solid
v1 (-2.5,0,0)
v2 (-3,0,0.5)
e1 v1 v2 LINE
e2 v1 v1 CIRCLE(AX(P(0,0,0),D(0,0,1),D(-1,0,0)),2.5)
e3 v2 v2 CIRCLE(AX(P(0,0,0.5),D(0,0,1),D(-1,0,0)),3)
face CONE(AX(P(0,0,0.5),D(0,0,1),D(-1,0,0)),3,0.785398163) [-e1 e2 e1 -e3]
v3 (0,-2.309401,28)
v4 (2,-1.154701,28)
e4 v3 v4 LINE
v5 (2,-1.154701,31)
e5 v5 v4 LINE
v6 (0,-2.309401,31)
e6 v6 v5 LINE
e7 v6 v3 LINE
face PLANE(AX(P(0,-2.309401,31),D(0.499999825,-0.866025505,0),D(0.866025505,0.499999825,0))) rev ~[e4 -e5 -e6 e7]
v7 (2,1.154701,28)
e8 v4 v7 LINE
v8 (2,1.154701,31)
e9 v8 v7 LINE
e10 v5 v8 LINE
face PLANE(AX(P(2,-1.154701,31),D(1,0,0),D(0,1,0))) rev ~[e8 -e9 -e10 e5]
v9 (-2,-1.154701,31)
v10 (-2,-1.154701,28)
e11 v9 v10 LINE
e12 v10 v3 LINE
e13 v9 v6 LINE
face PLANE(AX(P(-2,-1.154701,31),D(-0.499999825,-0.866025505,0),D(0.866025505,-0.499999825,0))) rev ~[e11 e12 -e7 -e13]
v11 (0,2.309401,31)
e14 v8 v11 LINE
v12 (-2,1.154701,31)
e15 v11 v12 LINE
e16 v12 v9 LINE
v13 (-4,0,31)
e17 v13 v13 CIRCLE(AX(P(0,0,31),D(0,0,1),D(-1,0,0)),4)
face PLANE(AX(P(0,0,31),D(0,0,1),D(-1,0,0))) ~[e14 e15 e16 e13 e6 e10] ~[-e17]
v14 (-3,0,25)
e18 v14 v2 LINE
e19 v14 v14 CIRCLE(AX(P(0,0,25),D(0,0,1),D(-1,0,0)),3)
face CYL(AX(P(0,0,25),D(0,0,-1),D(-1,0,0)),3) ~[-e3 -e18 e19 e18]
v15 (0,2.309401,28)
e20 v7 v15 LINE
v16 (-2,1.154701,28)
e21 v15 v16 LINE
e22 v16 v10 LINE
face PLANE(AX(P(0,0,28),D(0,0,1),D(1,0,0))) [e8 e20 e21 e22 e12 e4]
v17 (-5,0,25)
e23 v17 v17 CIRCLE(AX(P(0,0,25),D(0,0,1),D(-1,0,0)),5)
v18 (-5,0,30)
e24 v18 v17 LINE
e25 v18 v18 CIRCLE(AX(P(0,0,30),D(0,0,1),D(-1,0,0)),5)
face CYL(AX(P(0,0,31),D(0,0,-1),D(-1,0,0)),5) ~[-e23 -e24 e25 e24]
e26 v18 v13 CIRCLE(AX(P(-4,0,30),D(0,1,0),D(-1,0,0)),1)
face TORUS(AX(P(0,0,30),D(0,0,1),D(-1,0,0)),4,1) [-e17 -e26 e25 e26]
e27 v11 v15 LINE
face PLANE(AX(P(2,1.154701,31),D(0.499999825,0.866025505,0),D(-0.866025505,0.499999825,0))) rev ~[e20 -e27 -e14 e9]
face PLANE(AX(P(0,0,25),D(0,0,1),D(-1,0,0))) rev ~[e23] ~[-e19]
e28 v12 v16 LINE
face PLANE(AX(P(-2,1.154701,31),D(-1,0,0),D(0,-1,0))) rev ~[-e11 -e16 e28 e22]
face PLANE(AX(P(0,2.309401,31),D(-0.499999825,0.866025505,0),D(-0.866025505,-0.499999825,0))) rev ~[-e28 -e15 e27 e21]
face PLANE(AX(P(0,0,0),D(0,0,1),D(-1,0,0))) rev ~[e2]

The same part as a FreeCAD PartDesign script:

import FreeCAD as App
import Part
import Sketcher

V = App.Vector
Q = App.Units.Quantity


def edges_at(feature, points):
    """Names of the edges that pass closest to the given points."""
    edges = feature.Shape.Edges
    near = lambda p: min(range(len(edges)), key=lambda i: edges[i].distToShape(Part.Vertex(*p))[0])
    return sorted({f"Edge{near(p) + 1}" for p in points})


def add_polygon(sketch, points):
    """Adds a closed chain of lines whose ends are joined by coincident constraints."""
    first, n = sketch.GeometryCount, len(points)
    for a, b in zip(points, points[1:] + points[:1]):
        sketch.addGeometry(Part.LineSegment(App.Vector(*a, 0), App.Vector(*b, 0)), False)
    for i in range(n):
        sketch.addConstraint(Sketcher.Constraint("Coincident", first + i, 2, first + (i + 1) % n, 1))

doc = App.newDocument("Part")
body = doc.addObject("PartDesign::Body", "Body")

# Sketch on XZ plane
sketch1 = body.newObject("Sketcher::SketchObject", "Sketch")
sketch1.AttachmentSupport = (doc.getObject("XZ_Plane"), [""])
sketch1.MapMode = "FlatFace"
add_polygon(sketch1, [(-3, 0), (0, 0), (0, 31), (-5, 31), (-5, 25), (-3, 25)])  # lines 0-5
sketch1.addConstraint(Sketcher.Constraint("Horizontal", 0))
sketch1.addConstraint(Sketcher.Constraint("Vertical", 1))
sketch1.addConstraint(Sketcher.Constraint("Horizontal", 2))
sketch1.addConstraint(Sketcher.Constraint("Vertical", 3))
sketch1.addConstraint(Sketcher.Constraint("Horizontal", 4))
sketch1.addConstraint(Sketcher.Constraint("Vertical", 5))
sketch1.addConstraint(Sketcher.Constraint("Coincident", 0, 2, -1, 1))
sketch1.addConstraint(Sketcher.Constraint("DistanceX", 0, 1, 0, 2, Q("3 mm")))
sketch1.addConstraint(Sketcher.Constraint("DistanceX", 2, 2, 2, 1, Q("5 mm")))
sketch1.addConstraint(Sketcher.Constraint("DistanceY", 1, 1, 1, 2, Q("31 mm")))
sketch1.addConstraint(Sketcher.Constraint("DistanceY", 3, 2, 3, 1, Q("6 mm")))
revolution = body.newObject("PartDesign::Revolution", "Revolution")
revolution.Profile = sketch1
revolution.ReferenceAxis = (sketch1, ["V_Axis"])
revolution.Angle = 360
doc.recompute()

chamfer = body.newObject("PartDesign::Chamfer", "Chamfer")
chamfer.Base = (revolution, edges_at(revolution, [(3, 0, 0)]))
chamfer.Size = 0.5
doc.recompute()

fillet = body.newObject("PartDesign::Fillet", "Fillet")
fillet.Base = (chamfer, edges_at(chamfer, [(5, 0, 31)]))
fillet.Radius = 1

# Sketch on XY plane
sketch2 = body.newObject("Sketcher::SketchObject", "Sketch001")
sketch2.AttachmentSupport = (doc.getObject("XY_Plane"), [""])
sketch2.MapMode = "FlatFace"
sketch2.AttachmentOffset = App.Placement(V(0, 0, 31), App.Rotation())
add_polygon(sketch2, [(-2, 1.2), (-2, -1.2), (0, -2.3), (2, -1.2), (2, 1.2), (0, 2.3)])  # lines 0-5
sketch2.addConstraint(Sketcher.Constraint("Vertical", 0))
sketch2.addConstraint(Sketcher.Constraint("Vertical", 3))
sketch2.addConstraint(Sketcher.Constraint("Symmetric", 0, 2, 3, 2, -1, 1))
sketch2.addConstraint(Sketcher.Constraint("Symmetric", 1, 2, 4, 2, -1, 1))
sketch2.addConstraint(Sketcher.Constraint("PointOnObject", 1, 2, -2))
sketch2.addConstraint(Sketcher.Constraint("Parallel", 2, 5))
sketch2.addConstraint(Sketcher.Constraint("Horizontal", 0, 2, 2, 2))
sketch2.addConstraint(Sketcher.Constraint("Angle", 1, Q("-29.999988 deg")))
sketch2.addConstraint(Sketcher.Constraint("DistanceX", 0, 2, -1, 1, Q("2 mm")))
sketch2.addConstraint(Sketcher.Constraint("DistanceY", 0, 2, 0, 1, Q("2.309402 mm")))
pocket1 = body.newObject("PartDesign::Pocket", "Pocket")
pocket1.Profile = sketch2
pocket1.Length = 3

doc.recompute()
